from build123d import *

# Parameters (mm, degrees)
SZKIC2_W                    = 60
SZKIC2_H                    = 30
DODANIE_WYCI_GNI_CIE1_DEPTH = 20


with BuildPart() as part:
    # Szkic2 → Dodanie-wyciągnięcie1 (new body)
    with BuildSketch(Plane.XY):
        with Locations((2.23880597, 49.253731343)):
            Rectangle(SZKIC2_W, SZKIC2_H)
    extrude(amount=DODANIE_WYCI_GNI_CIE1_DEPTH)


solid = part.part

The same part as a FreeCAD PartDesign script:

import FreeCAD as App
import Part
import Sketcher

V = App.Vector

doc = App.newDocument("Part")
body = doc.addObject("PartDesign::Body", "Body")

# Sketch on XY plane
sketch1 = body.newObject("Sketcher::SketchObject", "Sketch")
sketch1.AttachmentSupport = (doc.getObject("XY_Plane"), [""])
sketch1.MapMode = "FlatFace"
sketch1.addGeometry(Part.LineSegment(V(-28, 64, 0), V(-28, 34, 0)), False)
sketch1.addGeometry(Part.LineSegment(V(-28, 34, 0), V(32, 34, 0)), False)
sketch1.addGeometry(Part.LineSegment(V(32, 34, 0), V(32, 64, 0)), False)
sketch1.addGeometry(Part.LineSegment(V(32, 64, 0), V(-28, 64, 0)), False)
sketch1.addConstraint(Sketcher.Constraint("Coincident", 0, 2, 1, 1))
sketch1.addConstraint(Sketcher.Constraint("Coincident", 1, 2, 2, 1))
sketch1.addConstraint(Sketcher.Constraint("Coincident", 2, 2, 3, 1))
sketch1.addConstraint(Sketcher.Constraint("Coincident", 3, 2, 0, 1))
sketch1.addConstraint(Sketcher.Constraint("Vertical", 0))
sketch1.addConstraint(Sketcher.Constraint("Horizontal", 1))
sketch1.addConstraint(Sketcher.Constraint("Vertical", 2))
sketch1.addConstraint(Sketcher.Constraint("Horizontal", 3))
sketch1.addConstraint(Sketcher.Constraint("DistanceX", 1, 1, 1, 2, 60.0))
sketch1.addConstraint(Sketcher.Constraint("DistanceY", 0, 2, 0, 1, 30.0))
sketch1.addConstraint(Sketcher.Constraint("DistanceY", -1, 1, 0, 2, 34.253731))
sketch1.addConstraint(Sketcher.Constraint("DistanceX", 0, 2, -1, 1, 27.761194))
pad1 = body.newObject("PartDesign::Pad", "Pad")
pad1.Profile = sketch1
pad1.Length = 20

doc.recompute()
